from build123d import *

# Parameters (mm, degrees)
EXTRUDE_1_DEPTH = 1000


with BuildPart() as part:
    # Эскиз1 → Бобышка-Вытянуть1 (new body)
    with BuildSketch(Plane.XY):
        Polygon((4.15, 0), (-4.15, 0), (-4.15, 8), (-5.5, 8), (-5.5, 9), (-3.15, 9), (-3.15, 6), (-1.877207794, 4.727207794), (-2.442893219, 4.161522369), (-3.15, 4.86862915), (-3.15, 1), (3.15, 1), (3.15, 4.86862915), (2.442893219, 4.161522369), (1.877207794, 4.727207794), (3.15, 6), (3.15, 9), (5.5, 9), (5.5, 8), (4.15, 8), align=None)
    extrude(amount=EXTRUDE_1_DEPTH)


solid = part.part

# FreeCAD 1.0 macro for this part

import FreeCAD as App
import Part
import Sketcher

V = App.Vector
Q = App.Units.Quantity


def add_polygon(sketch, points):
    """Adds a closed chain of lines whose ends are joined by coincident constraints."""
    first, n = sketch.GeometryCount, len(points)
    for a, b in zip(points, points[1:] + points[:1]):
        sketch.addGeometry(Part.LineSegment(App.Vector(*a, 0), App.Vector(*b, 0)), False)
    for i in range(n):
        sketch.addConstraint(Sketcher.Constraint("Coincident", first + i, 2, first + (i + 1) % n, 1))

doc = App.newDocument("Part")
body = doc.addObject("PartDesign::Body", "Body")

# Sketch on XY plane
sketch1 = body.newObject("Sketcher::SketchObject", "Sketch")
sketch1.AttachmentSupport = (doc.getObject("XY_Plane"), [""])
sketch1.MapMode = "FlatFace"
add_polygon(sketch1, [(-4.15, 0), (4.15, 0), (4.15, 8), (5.5, 8), (5.5, 9), (3.15, 9), (3.15, 6), (1.877208, 4.727208), (2.442893, 4.161522), (3.15, 4.868629), (3.15, 1), (-3.15, 1), (-3.15, 4.868629), (-2.442893, 4.161522), (-1.877208, 4.727208), (-3.15, 6), (-3.15, 9), (-5.5, 9), (-5.5, 8), (-4.15, 8)])  # lines 0-19
sketch1.addConstraint(Sketcher.Constraint("Horizontal", 0))
sketch1.addConstraint(Sketcher.Constraint("Vertical", 1))
sketch1.addConstraint(Sketcher.Constraint("Horizontal", 2))
sketch1.addConstraint(Sketcher.Constraint("Vertical", 3))
sketch1.addConstraint(Sketcher.Constraint("Horizontal", 4))
sketch1.addConstraint(Sketcher.Constraint("Vertical", 5))
sketch1.addConstraint(Sketcher.Constraint("Vertical", 9))
sketch1.addConstraint(Sketcher.Constraint("Horizontal", 10))
sketch1.addConstraint(Sketcher.Constraint("Vertical", 11))
sketch1.addConstraint(Sketcher.Constraint("Vertical", 15))
sketch1.addConstraint(Sketcher.Constraint("Horizontal", 16))
sketch1.addConstraint(Sketcher.Constraint("Vertical", 17))
sketch1.addConstraint(Sketcher.Constraint("Horizontal", 18))
sketch1.addConstraint(Sketcher.Constraint("Vertical", 19))
sketch1.addConstraint(Sketcher.Constraint("Symmetric", 0, 2, 19, 2, -1, 1))
sketch1.addConstraint(Sketcher.Constraint("Symmetric", 8, 2, 11, 2, -2))
sketch1.addConstraint(Sketcher.Constraint("Symmetric", 7, 2, 12, 2, -2))
sketch1.addConstraint(Sketcher.Constraint("Symmetric", 6, 2, 13, 2, -2))
sketch1.addConstraint(Sketcher.Constraint("Symmetric", 5, 2, 14, 2, -2))
sketch1.addConstraint(Sketcher.Constraint("Symmetric", 3, 2, 16, 2, -2))
sketch1.addConstraint(Sketcher.Constraint("Perpendicular", 6, 7))
sketch1.addConstraint(Sketcher.Constraint("Perpendicular", 7, 8))
sketch1.addConstraint(Sketcher.Constraint("Perpendicular", 8, 12))
sketch1.addConstraint(Sketcher.Constraint("Horizontal", 2, 2, 17, 2))
sketch1.addConstraint(Sketcher.Constraint("Vertical", 5, 2, 8, 2))
sketch1.addConstraint(Sketcher.Constraint("DistanceY", 1, 1, 1, 2, Q("8 mm")))
sketch1.addConstraint(Sketcher.Constraint("DistanceY", 3, 1, 3, 2, Q("1 mm")))
sketch1.addConstraint(Sketcher.Constraint("DistanceY", 5, 2, 5, 1, Q("3 mm")))
sketch1.addConstraint(Sketcher.Constraint("Distance", 8, Q("1 mm")))
sketch1.addConstraint(Sketcher.Constraint("DistanceX", 0, 1, 0, 2, Q("8.3 mm")))
sketch1.addConstraint(Sketcher.Constraint("DistanceX", 10, 2, 10, 1, Q("6.3 mm")))
sketch1.addConstraint(Sketcher.Constraint("DistanceY", -1, 1, 9, 2, Q("1 mm")))
sketch1.addConstraint(Sketcher.Constraint("Distance", 6, Q("1.8 mm")))
sketch1.addConstraint(Sketcher.Constraint("DistanceX", 2, 1, 2, 2, Q("1.35 mm")))
pad1 = body.newObject("PartDesign::Pad", "Pad")
pad1.Profile = sketch1
pad1.Length = 1000

doc.recompute()
